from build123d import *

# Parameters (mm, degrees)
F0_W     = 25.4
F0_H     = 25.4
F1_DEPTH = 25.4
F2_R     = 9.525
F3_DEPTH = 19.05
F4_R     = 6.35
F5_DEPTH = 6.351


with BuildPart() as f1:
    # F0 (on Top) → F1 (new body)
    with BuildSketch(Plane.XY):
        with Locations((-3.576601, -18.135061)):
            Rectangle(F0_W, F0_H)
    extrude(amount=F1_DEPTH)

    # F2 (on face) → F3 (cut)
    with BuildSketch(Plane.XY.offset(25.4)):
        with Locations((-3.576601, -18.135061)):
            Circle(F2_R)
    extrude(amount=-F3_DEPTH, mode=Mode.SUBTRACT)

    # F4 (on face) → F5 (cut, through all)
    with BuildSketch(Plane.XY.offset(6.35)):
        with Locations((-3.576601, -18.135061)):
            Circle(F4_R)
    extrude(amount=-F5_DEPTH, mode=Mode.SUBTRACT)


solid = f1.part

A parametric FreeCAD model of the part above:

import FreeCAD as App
import Part
import Sketcher
Q = App.Units.Quantity

doc = App.newDocument("Part")
body = doc.addObject("PartDesign::Body", "Body")

# Sketch on XY plane
sketch1 = body.newObject("Sketcher::SketchObject", "Sketch")
sketch1.AttachmentSupport = (doc.getObject("XY_Plane"), [""])
sketch1.MapMode = "FlatFace"
sketch1.addGeometry([
    Part.LineSegment(App.Vector(-16, -5, 0), App.Vector(-16, -31, 0)),
    Part.LineSegment(App.Vector(-16, -31, 0), App.Vector(9, -31, 0)),
    Part.LineSegment(App.Vector(9, -31, 0), App.Vector(9, -5, 0)),
    Part.LineSegment(App.Vector(9, -5, 0), App.Vector(-16, -5, 0)),
], False)
sketch1.addConstraint([
    Sketcher.Constraint("Coincident", 0, 2, 1, 1),
    Sketcher.Constraint("Coincident", 1, 2, 2, 1),
    Sketcher.Constraint("Coincident", 2, 2, 3, 1),
    Sketcher.Constraint("Coincident", 3, 2, 0, 1),
    Sketcher.Constraint("Vertical", 0),
    Sketcher.Constraint("Horizontal", 1),
    Sketcher.Constraint("Vertical", 2),
    Sketcher.Constraint("Horizontal", 3),
    Sketcher.Constraint("Equal", 3, 0),
    Sketcher.Constraint("DistanceX", 1, 1, 1, 2, Q("1 in")),
    Sketcher.Constraint("DistanceX", 0, 2, -1, 1, Q("16.276601 mm")),
    Sketcher.Constraint("DistanceY", 0, 2, -1, 1, Q("30.835061 mm")),
])
pad1 = body.newObject("PartDesign::Pad", "Pad")
pad1.Profile = sketch1
pad1.Length = Q("1 in")

# Sketch on XY plane
sketch2 = body.newObject("Sketcher::SketchObject", "Sketch001")
sketch2.AttachmentSupport = (doc.getObject("XY_Plane"), [""])
sketch2.MapMode = "FlatFace"
sketch2.AttachmentOffset = App.Placement(App.Vector(0, 0, 1 * 25.4), App.Rotation())
sketch2.addGeometry(Part.Circle(App.Vector(-4, -18, 0), App.Vector(0, 0, 1), 10), False)
sketch2.addConstraint([
    Sketcher.Constraint("Diameter", 0, Q("0.75 in")),
    Sketcher.Constraint("DistanceX", 0, 3, -1, 1, Q("3.576601 mm")),
    Sketcher.Constraint("DistanceY", 0, 3, -1, 1, Q("18.135061 mm")),
])
pocket1 = body.newObject("PartDesign::Pocket", "Pocket")
pocket1.Profile = sketch2
pocket1.Length = Q("0.75 in")

# Sketch on XY plane
sketch3 = body.newObject("Sketcher::SketchObject", "Sketch002")
sketch3.AttachmentSupport = (doc.getObject("XY_Plane"), [""])
sketch3.MapMode = "FlatFace"
sketch3.AttachmentOffset = App.Placement(App.Vector(0, 0, 0.25 * 25.4), App.Rotation())
sketch3.addGeometry(Part.Circle(App.Vector(-4, -18, 0), App.Vector(0, 0, 1), 6), False)
sketch3.addConstraint([
    Sketcher.Constraint("Diameter", 0, Q("0.5 in")),
    Sketcher.Constraint("DistanceX", 0, 3, -1, 1, Q("3.576601 mm")),
    Sketcher.Constraint("DistanceY", 0, 3, -1, 1, Q("18.135061 mm")),
])
pocket2 = body.newObject("PartDesign::Pocket", "Pocket001")
pocket2.Profile = sketch3
pocket2.Type = "ThroughAll"

doc.recompute()
